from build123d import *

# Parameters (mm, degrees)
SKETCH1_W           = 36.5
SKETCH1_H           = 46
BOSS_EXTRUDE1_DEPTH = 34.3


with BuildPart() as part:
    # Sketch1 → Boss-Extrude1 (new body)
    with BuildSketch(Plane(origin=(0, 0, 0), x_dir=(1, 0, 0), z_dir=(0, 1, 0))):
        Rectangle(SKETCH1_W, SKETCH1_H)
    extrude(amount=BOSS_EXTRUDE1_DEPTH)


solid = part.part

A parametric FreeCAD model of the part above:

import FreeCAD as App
import Part
import Sketcher

V = App.Vector


def add_polygon(sketch, points):
    """Adds a closed chain of lines whose ends are joined by coincident constraints."""
    first, n = sketch.GeometryCount, len(points)
    for a, b in zip(points, points[1:] + points[:1]):
        sketch.addGeometry(Part.LineSegment(App.Vector(*a, 0), App.Vector(*b, 0)), False)
    for i in range(n):
        sketch.addConstraint(Sketcher.Constraint("Coincident", first + i, 2, first + (i + 1) % n, 1))

doc = App.newDocument("Part")
params = doc.addObject("Spreadsheet::Sheet", "Params")
for row, (alias, value) in enumerate([
    ("sketch1_height", "46 mm"),
    ("sketch1_width", "36.5 mm"),
    ("pad1_length", "34.3 mm"),
], start=1):
    params.set(f"A{row}", alias)
    params.set(f"B{row}", "=" + value)
    params.setAlias(f"B{row}", alias)

body = doc.addObject("PartDesign::Body", "Body")

sketch1 = body.newObject("Sketcher::SketchObject", "Sketch")
sketch1.AttachmentSupport = (doc.getObject("XZ_Plane"), [""])
sketch1.MapMode = "FlatFace"
add_polygon(sketch1, [(-18, -23), (-18, 23), (18, 23), (18, -23)])
sketch1.addConstraint(Sketcher.Constraint("Vertical", 0))
sketch1.addConstraint(Sketcher.Constraint("Horizontal", 1))
sketch1.addConstraint(Sketcher.Constraint("Vertical", 2))
sketch1.addConstraint(Sketcher.Constraint("Horizontal", 3))
sketch1.addConstraint(Sketcher.Constraint("Symmetric", 0, 2, 2, 2, -1, 1))
sketch1.addConstraint(Sketcher.Constraint("DistanceY", 0, 1, 0, 2, 46.0))
sketch1.addConstraint(Sketcher.Constraint("DistanceX", 1, 1, 1, 2, 36.5))
sketch1.setExpression("Constraints[9]", "Params.sketch1_height")
sketch1.setExpression("Constraints[10]", "Params.sketch1_width")
pad1 = body.newObject("PartDesign::Pad", "Pad")
pad1.Profile = sketch1
pad1.setExpression("Length", "Params.pad1_length")
pad1.Reversed = True

doc.recompute()
